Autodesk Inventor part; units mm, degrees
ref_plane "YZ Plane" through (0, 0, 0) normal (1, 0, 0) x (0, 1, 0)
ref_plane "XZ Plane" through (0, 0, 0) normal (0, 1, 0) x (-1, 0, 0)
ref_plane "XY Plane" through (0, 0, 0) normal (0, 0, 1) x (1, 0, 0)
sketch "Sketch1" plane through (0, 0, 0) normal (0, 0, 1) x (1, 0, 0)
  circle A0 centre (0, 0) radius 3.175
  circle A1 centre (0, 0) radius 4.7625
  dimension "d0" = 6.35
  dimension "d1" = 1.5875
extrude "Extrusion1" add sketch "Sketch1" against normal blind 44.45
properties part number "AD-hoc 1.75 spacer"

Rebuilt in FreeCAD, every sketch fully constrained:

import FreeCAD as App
import Part
import Sketcher

V = App.Vector
Q = App.Units.Quantity

doc = App.newDocument("Part")
body = doc.addObject("PartDesign::Body", "Body")

# Sketch on XY plane
sketch1 = doc.addObject("Sketcher::SketchObject", "Sketch")
body.addObject(sketch1)
sketch1.AttachmentSupport = (doc.XY_Plane, [""])
sketch1.MapMode = "FlatFace"
sketch1.addGeometry(Part.Circle(V(0, 0, 0), V(0, 0, 1), 4.8), False)
sketch1.addGeometry(Part.Circle(V(0, 0, 0), V(0, 0, 1), 3.2), False)
sketch1.addConstraint(Sketcher.Constraint("Coincident", 0, 3, -1, 1))
sketch1.addConstraint(Sketcher.Constraint("Coincident", 1, 3, -1, 1))
sketch1.addConstraint(Sketcher.Constraint("Diameter", 1, Q("0.25 in")))
sketch1.addConstraint(Sketcher.Constraint("Diameter", 0, Q("0.375 in")))
pad1 = doc.addObject("PartDesign::Pad", "Pad")
body.addObject(pad1)
pad1.Profile = sketch1
pad1.Length = Q("1.75 in")
pad1.Reversed = True

doc.recompute()
